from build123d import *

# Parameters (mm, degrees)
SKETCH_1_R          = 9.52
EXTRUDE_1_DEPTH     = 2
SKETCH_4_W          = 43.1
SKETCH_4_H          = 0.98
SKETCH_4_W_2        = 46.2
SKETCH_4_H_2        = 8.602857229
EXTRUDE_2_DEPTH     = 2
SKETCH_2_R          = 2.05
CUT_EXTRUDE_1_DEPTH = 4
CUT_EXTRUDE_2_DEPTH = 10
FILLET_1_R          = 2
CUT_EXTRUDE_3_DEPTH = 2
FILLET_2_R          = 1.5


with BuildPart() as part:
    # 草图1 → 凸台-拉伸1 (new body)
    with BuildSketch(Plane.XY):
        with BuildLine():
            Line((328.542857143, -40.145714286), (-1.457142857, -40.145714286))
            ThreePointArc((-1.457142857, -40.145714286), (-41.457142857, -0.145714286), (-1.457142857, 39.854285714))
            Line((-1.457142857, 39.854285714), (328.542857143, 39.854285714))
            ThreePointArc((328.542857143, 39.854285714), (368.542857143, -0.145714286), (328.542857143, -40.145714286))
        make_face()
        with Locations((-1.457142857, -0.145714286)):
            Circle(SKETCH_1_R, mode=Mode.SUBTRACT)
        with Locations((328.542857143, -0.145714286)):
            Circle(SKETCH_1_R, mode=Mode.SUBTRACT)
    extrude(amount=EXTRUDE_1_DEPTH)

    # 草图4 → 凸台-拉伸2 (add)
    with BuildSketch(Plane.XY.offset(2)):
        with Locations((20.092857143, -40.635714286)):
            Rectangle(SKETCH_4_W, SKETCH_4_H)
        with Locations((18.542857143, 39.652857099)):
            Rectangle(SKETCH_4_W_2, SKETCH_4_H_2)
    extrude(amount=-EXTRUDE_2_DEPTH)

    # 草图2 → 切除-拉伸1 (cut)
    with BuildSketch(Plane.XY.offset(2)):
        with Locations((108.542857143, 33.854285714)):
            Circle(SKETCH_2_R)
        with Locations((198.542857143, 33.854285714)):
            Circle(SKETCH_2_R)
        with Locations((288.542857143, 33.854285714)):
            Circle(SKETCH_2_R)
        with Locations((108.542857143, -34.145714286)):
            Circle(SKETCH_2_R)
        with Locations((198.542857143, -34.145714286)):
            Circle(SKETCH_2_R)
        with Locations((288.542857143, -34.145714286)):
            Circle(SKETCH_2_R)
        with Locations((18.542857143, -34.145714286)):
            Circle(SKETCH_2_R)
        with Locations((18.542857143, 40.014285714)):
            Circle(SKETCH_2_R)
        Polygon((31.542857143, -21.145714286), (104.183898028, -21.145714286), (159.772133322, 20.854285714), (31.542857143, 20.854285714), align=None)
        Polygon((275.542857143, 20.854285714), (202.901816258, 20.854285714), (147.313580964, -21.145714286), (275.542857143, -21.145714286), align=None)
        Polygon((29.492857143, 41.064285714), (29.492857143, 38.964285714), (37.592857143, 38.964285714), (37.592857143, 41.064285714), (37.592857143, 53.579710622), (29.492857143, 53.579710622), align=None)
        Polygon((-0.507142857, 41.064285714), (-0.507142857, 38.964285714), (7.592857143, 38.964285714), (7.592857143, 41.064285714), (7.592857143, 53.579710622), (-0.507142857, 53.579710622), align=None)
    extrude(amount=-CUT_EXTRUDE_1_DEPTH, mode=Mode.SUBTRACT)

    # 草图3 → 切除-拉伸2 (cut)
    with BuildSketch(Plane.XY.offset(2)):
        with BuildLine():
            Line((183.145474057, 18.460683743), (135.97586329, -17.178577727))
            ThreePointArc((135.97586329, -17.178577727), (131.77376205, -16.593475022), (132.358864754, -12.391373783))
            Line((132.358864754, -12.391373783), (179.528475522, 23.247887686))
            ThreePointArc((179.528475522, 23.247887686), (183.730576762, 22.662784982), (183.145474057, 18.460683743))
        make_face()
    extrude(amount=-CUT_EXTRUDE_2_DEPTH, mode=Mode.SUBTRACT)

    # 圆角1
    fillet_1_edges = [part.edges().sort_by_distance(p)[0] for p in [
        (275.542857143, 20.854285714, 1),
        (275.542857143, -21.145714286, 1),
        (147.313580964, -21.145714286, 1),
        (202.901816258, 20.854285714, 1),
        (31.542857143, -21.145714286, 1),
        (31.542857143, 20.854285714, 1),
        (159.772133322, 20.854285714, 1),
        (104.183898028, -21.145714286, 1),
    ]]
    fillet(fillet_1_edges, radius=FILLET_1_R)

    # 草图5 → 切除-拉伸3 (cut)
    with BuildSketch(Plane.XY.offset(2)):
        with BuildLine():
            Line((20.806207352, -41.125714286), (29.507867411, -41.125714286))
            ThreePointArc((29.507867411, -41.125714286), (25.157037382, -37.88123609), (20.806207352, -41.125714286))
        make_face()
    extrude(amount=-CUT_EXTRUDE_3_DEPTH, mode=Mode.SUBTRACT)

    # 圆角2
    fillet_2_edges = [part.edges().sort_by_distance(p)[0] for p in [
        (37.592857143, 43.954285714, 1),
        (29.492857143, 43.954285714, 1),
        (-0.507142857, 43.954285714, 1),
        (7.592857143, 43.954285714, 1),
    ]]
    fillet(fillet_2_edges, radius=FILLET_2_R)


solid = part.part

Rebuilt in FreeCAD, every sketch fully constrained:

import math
import FreeCAD as App
import Part
import Sketcher

V = App.Vector


def edges_at(feature, points):
    """Names of the edges that pass closest to the given points."""
    edges = feature.Shape.Edges
    near = lambda p: min(range(len(edges)), key=lambda i: edges[i].distToShape(Part.Vertex(*p))[0])
    return sorted({f"Edge{near(p) + 1}" for p in points})


def add_polygon(sketch, points):
    """Adds a closed chain of lines whose ends are joined by coincident constraints."""
    first, n = sketch.GeometryCount, len(points)
    for a, b in zip(points, points[1:] + points[:1]):
        sketch.addGeometry(Part.LineSegment(App.Vector(*a, 0), App.Vector(*b, 0)), False)
    for i in range(n):
        sketch.addConstraint(Sketcher.Constraint("Coincident", first + i, 2, first + (i + 1) % n, 1))

doc = App.newDocument("Part")
body = doc.addObject("PartDesign::Body", "Body")

sketch1 = body.newObject("Sketcher::SketchObject", "Sketch")
sketch1.AttachmentSupport = (doc.getObject("XY_Plane"), [""])
sketch1.MapMode = "FlatFace"
sketch1.addGeometry([
    Part.LineSegment(V(-1, -40, 0), V(329, -40, 0)),
    Part.ArcOfCircle(Part.Circle(V(329, 0, 0), V(0, 0, 1), 40), math.radians(-90), math.radians(90)),
    Part.LineSegment(V(329, 40, 0), V(-1, 40, 0)),
    Part.ArcOfCircle(Part.Circle(V(-1, 0, 0), V(0, 0, 1), 40), math.radians(90), math.radians(270)),
    Part.Circle(V(329, 0, 0), V(0, 0, 1), 10),
    Part.Circle(V(-1, 0, 0), V(0, 0, 1), 10),
], False)
sketch1.addConstraint([
    Sketcher.Constraint("Tangent", 0, 2, 1, 1),
    Sketcher.Constraint("Tangent", 1, 2, 2, 1),
    Sketcher.Constraint("Tangent", 2, 2, 3, 1),
    Sketcher.Constraint("Tangent", 3, 2, 0, 1),
    Sketcher.Constraint("Horizontal", 0),
    Sketcher.Constraint("Horizontal", 2),
    Sketcher.Constraint("Coincident", 4, 3, 1, 3),
    Sketcher.Constraint("Coincident", 5, 3, 3, 3),
    Sketcher.Constraint("Equal", 4, 5),
    Sketcher.Constraint("Radius", 1, 40.0),
    Sketcher.Constraint("Diameter", 4, 19.04),
    Sketcher.Constraint("DistanceX", 0, 1, 0, 2, 330.0),
    Sketcher.Constraint("DistanceX", -1, 1, 1, 3, 328.542857),
    Sketcher.Constraint("DistanceY", 1, 3, -1, 1, 0.145714),
])
pad1 = body.newObject("PartDesign::Pad", "Pad")
pad1.Profile = sketch1
pad1.Length = 2

sketch2 = body.newObject("Sketcher::SketchObject", "Sketch001")
sketch2.AttachmentSupport = (doc.getObject("XY_Plane"), [""])
sketch2.MapMode = "FlatFace"
sketch2.AttachmentOffset = App.Placement(V(0, 0, 2), App.Rotation())
add_polygon(sketch2, [(-1.5, -40.1), (-1.5, -41.1), (41.6, -41.1), (41.6, -40.1)])
add_polygon(sketch2, [(-4.6, 44), (-4.6, 35.4), (41.6, 35.4), (41.6, 44)])
sketch2.addConstraint([
    Sketcher.Constraint("Vertical", 0),
    Sketcher.Constraint("Horizontal", 1),
    Sketcher.Constraint("Vertical", 2),
    Sketcher.Constraint("Horizontal", 3),
    Sketcher.Constraint("Vertical", 4),
    Sketcher.Constraint("Horizontal", 5),
    Sketcher.Constraint("Vertical", 6),
    Sketcher.Constraint("Horizontal", 7),
    Sketcher.Constraint("Vertical", 2, 2, 5, 2),
    Sketcher.Constraint("DistanceX", 1, 1, 1, 2, 43.1),
    Sketcher.Constraint("DistanceX", 5, 1, 5, 2, 46.2),
    Sketcher.Constraint("DistanceY", 0, 2, 0, 1, 0.98),
    Sketcher.Constraint("DistanceY", 2, 2, 6, 2, 84.1),
    Sketcher.Constraint("DistanceY", 4, 2, 4, 1, 8.602857),
    Sketcher.Constraint("DistanceY", -1, 1, 4, 2, 35.351428),
    Sketcher.Constraint("DistanceX", 0, 2, -1, 1, 1.457143),
])
pad2 = body.newObject("PartDesign::Pad", "Pad001")
pad2.Profile = sketch2
pad2.Length = 2
pad2.Reversed = True

sketch3 = body.newObject("Sketcher::SketchObject", "Sketch002")
sketch3.AttachmentSupport = (doc.getObject("XY_Plane"), [""])
sketch3.MapMode = "FlatFace"
sketch3.AttachmentOffset = App.Placement(V(0, 0, 2), App.Rotation())
sketch3.addGeometry(Part.Circle(V(108.5, 33.9, 0), V(0, 0, 1), 2), False)
sketch3.addGeometry(Part.Circle(V(198.5, 33.9, 0), V(0, 0, 1), 2), False)
sketch3.addGeometry(Part.Circle(V(288.5, 33.9, 0), V(0, 0, 1), 2), False)
sketch3.addGeometry(Part.Circle(V(108.5, -34.1, 0), V(0, 0, 1), 2), False)
sketch3.addGeometry(Part.Circle(V(198.5, -34.1, 0), V(0, 0, 1), 2), False)
sketch3.addGeometry(Part.Circle(V(288.5, -34.1, 0), V(0, 0, 1), 2), False)
sketch3.addGeometry(Part.Circle(V(18.5, -34.1, 0), V(0, 0, 1), 2), False)
sketch3.addGeometry(Part.Circle(V(18.5, 40, 0), V(0, 0, 1), 2), False)
add_polygon(sketch3, [(31.5, -21.1), (104.2, -21.1), (159.8, 20.9), (31.5, 20.9)])
add_polygon(sketch3, [(275.5, 20.9), (202.9, 20.9), (147.3, -21.1), (275.5, -21.1)])
add_polygon(sketch3, [(29.5, 39), (37.6, 39), (37.6, 53.6), (29.5, 53.6)])
add_polygon(sketch3, [(-0.5, 39), (7.6, 39), (7.6, 53.6), (-0.5, 53.6)])
sketch3.addConstraint([
    Sketcher.Constraint("Horizontal", 8),
    Sketcher.Constraint("Horizontal", 10),
    Sketcher.Constraint("Vertical", 11),
    Sketcher.Constraint("Horizontal", 12),
    Sketcher.Constraint("Horizontal", 14),
    Sketcher.Constraint("Vertical", 15),
    Sketcher.Constraint("Horizontal", 16),
    Sketcher.Constraint("Vertical", 17),
    Sketcher.Constraint("Horizontal", 18),
    Sketcher.Constraint("Vertical", 19),
    Sketcher.Constraint("Horizontal", 20),
    Sketcher.Constraint("Vertical", 21),
    Sketcher.Constraint("Horizontal", 22),
    Sketcher.Constraint("Vertical", 23),
    Sketcher.Constraint("Equal", 0, 1),
    Sketcher.Constraint("Equal", 1, 2),
    Sketcher.Constraint("Equal", 2, 3),
    Sketcher.Constraint("Equal", 3, 4),
    Sketcher.Constraint("Equal", 4, 5),
    Sketcher.Constraint("Equal", 5, 6),
    Sketcher.Constraint("Equal", 6, 7),
    Sketcher.Constraint("Parallel", 9, 13),
    Sketcher.Constraint("Horizontal", 0, 3, 1, 3),
    Sketcher.Constraint("Horizontal", 1, 3, 2, 3),
    Sketcher.Constraint("Horizontal", 3, 3, 4, 3),
    Sketcher.Constraint("Horizontal", 4, 3, 5, 3),
    Sketcher.Constraint("Horizontal", 5, 3, 6, 3),
    Sketcher.Constraint("Horizontal", 10, 2, 12, 2),
    Sketcher.Constraint("Horizontal", 11, 2, 13, 2),
    Sketcher.Constraint("Horizontal", 19, 2, 20, 2),
    Sketcher.Constraint("Horizontal", 18, 2, 21, 2),
    Sketcher.Constraint("Vertical", 0, 3, 3, 3),
    Sketcher.Constraint("Vertical", 1, 3, 4, 3),
    Sketcher.Constraint("Vertical", 2, 3, 5, 3),
    Sketcher.Constraint("Vertical", 6, 3, 7, 3),
    Sketcher.Constraint("Equal", 8, 12),
    Sketcher.Constraint("Equal", 18, 20),
    Sketcher.Constraint("Diameter", 0, 4.1),
    Sketcher.Constraint("DistanceY", 11, 2, 11, 1, 42.0),
    Sketcher.Constraint("DistanceX", 16, 1, 16, 2, 8.1),
    Sketcher.Constraint("DistanceX", 0, 3, 1, 3, 90.0),
    Sketcher.Constraint("DistanceX", 1, 3, 2, 3, 90.0),
    Sketcher.Constraint("DistanceY", 3, 3, 0, 3, 68.0),
    Sketcher.Constraint("DistanceX", 6, 3, 3, 3, 90.0),
    Sketcher.Constraint("DistanceY", 3, 3, 8, 2, 13.0),
    Sketcher.Constraint("DistanceX", 7, 3, 10, 2, 13.0),
    Sketcher.Constraint("DistanceX", 14, 2, 5, 3, 13.0),
    Sketcher.Constraint("DistanceX", 20, 2, 16, 2, 30.0),
    Sketcher.Constraint("DistanceY", 6, 3, 7, 3, 74.16),
    Sketcher.Constraint("DistanceX", 7, 3, 16, 2, 19.05),
    Sketcher.Constraint("DistanceY", 16, 2, 7, 3, 1.05),
    Sketcher.Constraint("DistanceX", 8, 1, 8, 2, 72.641041),
    Sketcher.Constraint("DistanceX", -1, 1, 8, 2, 104.183898),
    Sketcher.Constraint("DistanceX", 10, 2, 10, 1, 128.229276),
    Sketcher.Constraint("DistanceY", 17, 1, 17, 2, 14.615425),
    Sketcher.Constraint("DistanceY", -1, 1, 17, 2, 53.579711),
])
pocket1 = body.newObject("PartDesign::Pocket", "Pocket")
pocket1.Profile = sketch3
pocket1.Length = 4

sketch4 = body.newObject("Sketcher::SketchObject", "Sketch003")
sketch4.AttachmentSupport = (doc.getObject("XY_Plane"), [""])
sketch4.MapMode = "FlatFace"
sketch4.AttachmentOffset = App.Placement(V(0, 0, 2), App.Rotation())
sketch4.addGeometry([
    Part.LineSegment(V(136, -17.2, 0), V(183.1, 18.5, 0)),
    Part.ArcOfCircle(Part.Circle(V(181.3, 20.9, 0), V(0, 0, 1), 3), math.radians(-53), math.radians(127)),
    Part.LineSegment(V(179.5, 23.2, 0), V(132.4, -12.4, 0)),
    Part.ArcOfCircle(Part.Circle(V(134.2, -14.8, 0), V(0, 0, 1), 3), math.radians(127), math.radians(307)),
], False)
sketch4.addConstraint([
    Sketcher.Constraint("Tangent", 0, 2, 1, 1),
    Sketcher.Constraint("Tangent", 1, 2, 2, 1),
    Sketcher.Constraint("Tangent", 2, 2, 3, 1),
    Sketcher.Constraint("Tangent", 3, 2, 0, 1),
    Sketcher.Constraint("Equal", 1, 3),
    Sketcher.Constraint("Radius", 1, 3.0),
    Sketcher.Constraint("DistanceX", 1, 2, 0, 2, 3.616999),
    Sketcher.Constraint("DistanceX", 3, 3, 1, 3, 47.169611),
    Sketcher.Constraint("DistanceX", -1, 1, 1, 3, 181.336975),
    Sketcher.Constraint("DistanceY", -1, 1, 1, 3, 20.854286),
])
pocket2 = body.newObject("PartDesign::Pocket", "Pocket001")
pocket2.Profile = sketch4
pocket2.Length = 10
doc.recompute()

fillet = body.newObject("PartDesign::Fillet", "Fillet")
fillet.Base = (pocket2, edges_at(pocket2, [
    (275.543, 20.854, 1),
    (275.543, -21.146, 1),
    (147.314, -21.146, 1),
    (202.902, 20.854, 1),
    (31.543, -21.146, 1),
    (31.543, 20.854, 1),
    (159.772, 20.854, 1),
    (104.184, -21.146, 1),
]))
fillet.Radius = 2

sketch5 = body.newObject("Sketcher::SketchObject", "Sketch004")
sketch5.AttachmentSupport = (doc.getObject("XY_Plane"), [""])
sketch5.MapMode = "FlatFace"
sketch5.AttachmentOffset = App.Placement(V(0, 0, 2), App.Rotation())
sketch5.addGeometry([
    Part.LineSegment(V(20.8, -41.1, 0), V(29.5, -41.1, 0)),
    Part.ArcOfCircle(Part.Circle(V(25.2, -42.4, 0), V(0, 0, 1), 4.5), math.radians(17), math.radians(163)),
], False)
sketch5.addConstraint([
    Sketcher.Constraint("Coincident", 0, 1, 1, 2),
    Sketcher.Constraint("Coincident", 1, 1, 0, 2),
    Sketcher.Constraint("Horizontal", 0),
    Sketcher.Constraint("Radius", 1, 4.53946),
    Sketcher.Constraint("DistanceX", 0, 1, 0, 2, 8.70166),
    Sketcher.Constraint("DistanceX", -1, 1, 1, 3, 25.157037),
    Sketcher.Constraint("DistanceY", 1, 3, -1, 1, 42.420697),
])
pocket3 = body.newObject("PartDesign::Pocket", "Pocket002")
pocket3.Profile = sketch5
pocket3.Length = 2
doc.recompute()

fillet2 = body.newObject("PartDesign::Fillet", "Fillet001")
fillet2.Base = (pocket3, edges_at(pocket3, [
    (37.593, 43.954, 1),
    (29.493, 43.954, 1),
    (-0.507, 43.954, 1),
    (7.593, 43.954, 1),
]))
fillet2.Radius = 1.5

doc.recompute()
